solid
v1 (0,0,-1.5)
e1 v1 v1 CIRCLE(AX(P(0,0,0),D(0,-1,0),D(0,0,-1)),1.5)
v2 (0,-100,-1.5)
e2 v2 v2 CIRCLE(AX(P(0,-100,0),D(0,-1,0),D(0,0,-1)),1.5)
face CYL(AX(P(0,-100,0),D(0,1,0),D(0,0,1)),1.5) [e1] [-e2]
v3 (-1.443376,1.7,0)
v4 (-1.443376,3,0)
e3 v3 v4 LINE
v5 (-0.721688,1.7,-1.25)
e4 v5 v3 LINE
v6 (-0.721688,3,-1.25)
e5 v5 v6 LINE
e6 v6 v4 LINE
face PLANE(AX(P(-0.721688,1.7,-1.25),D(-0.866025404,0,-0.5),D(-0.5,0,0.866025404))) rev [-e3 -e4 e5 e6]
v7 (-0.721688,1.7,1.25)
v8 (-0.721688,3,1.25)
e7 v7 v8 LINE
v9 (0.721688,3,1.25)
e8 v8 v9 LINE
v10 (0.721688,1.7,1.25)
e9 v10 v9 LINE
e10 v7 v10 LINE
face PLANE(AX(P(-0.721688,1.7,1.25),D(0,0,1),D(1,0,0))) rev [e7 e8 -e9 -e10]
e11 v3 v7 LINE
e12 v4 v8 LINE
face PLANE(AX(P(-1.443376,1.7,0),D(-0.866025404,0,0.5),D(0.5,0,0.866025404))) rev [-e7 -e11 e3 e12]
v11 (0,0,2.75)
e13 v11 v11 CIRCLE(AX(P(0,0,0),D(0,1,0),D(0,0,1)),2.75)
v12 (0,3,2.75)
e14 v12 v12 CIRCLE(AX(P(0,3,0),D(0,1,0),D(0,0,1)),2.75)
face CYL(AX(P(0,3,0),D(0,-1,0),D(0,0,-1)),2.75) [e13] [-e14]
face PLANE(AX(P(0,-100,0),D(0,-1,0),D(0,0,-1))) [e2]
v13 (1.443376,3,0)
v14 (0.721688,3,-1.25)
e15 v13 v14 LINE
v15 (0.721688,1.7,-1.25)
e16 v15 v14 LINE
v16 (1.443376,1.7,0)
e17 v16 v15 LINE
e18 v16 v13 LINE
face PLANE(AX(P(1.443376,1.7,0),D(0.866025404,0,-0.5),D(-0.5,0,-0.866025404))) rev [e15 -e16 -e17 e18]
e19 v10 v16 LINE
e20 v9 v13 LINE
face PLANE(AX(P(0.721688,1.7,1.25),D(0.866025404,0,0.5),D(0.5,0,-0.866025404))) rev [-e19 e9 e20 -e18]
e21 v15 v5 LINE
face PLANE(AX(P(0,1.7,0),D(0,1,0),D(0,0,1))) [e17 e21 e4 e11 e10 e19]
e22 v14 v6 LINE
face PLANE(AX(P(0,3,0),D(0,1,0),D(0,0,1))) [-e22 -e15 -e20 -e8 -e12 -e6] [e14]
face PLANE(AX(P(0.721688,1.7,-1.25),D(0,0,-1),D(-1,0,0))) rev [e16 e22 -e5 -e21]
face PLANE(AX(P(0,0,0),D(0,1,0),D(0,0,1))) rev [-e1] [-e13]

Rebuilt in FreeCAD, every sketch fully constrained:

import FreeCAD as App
import Part
import Sketcher
from FreeCAD import Vector
Q = App.Units.Quantity

doc = App.newDocument("Part")
body = doc.addObject("PartDesign::Body", "Body")

# Sketch on XZ plane
sketch1 = doc.addObject("Sketcher::SketchObject", "Sketch")
body.addObject(sketch1)
sketch1.AttachmentSupport = (doc.XZ_Plane, [""])
sketch1.MapMode = "FlatFace"
sketch1.addGeometry(Part.Circle(Vector(0, 0, 0), Vector(0, 0, 1), 2.8), False)
sketch1.addConstraint([
    Sketcher.Constraint("Coincident", 0, 3, -1, 1),
    Sketcher.Constraint("Diameter", 0, 5.5),
])
pad1 = doc.addObject("PartDesign::Pad", "Pad")
body.addObject(pad1)
pad1.Profile = sketch1
pad1.Length = 3
pad1.Reversed = True

# Sketch on XZ plane
sketch2 = doc.addObject("Sketcher::SketchObject", "Sketch001")
body.addObject(sketch2)
sketch2.AttachmentSupport = (doc.XZ_Plane, [""])
sketch2.MapMode = "FlatFace"
sketch2.AttachmentOffset = App.Placement(Vector(0, 0, -3), App.Rotation())
sketch2.addGeometry([
    Part.LineSegment(Vector(1.4, 0, 0), Vector(0.7, -1.2, 0)),  # 0
    Part.LineSegment(Vector(0.7, -1.2, 0), Vector(-0.7, -1.2, 0)),  # 1
    Part.LineSegment(Vector(-0.7, -1.2, 0), Vector(-1.4, 0, 0)),  # 2
    Part.LineSegment(Vector(-1.4, 0, 0), Vector(-0.7, 1.2, 0)),  # 3
    Part.LineSegment(Vector(-0.7, 1.2, 0), Vector(0.7, 1.2, 0)),  # 4
    Part.LineSegment(Vector(0.7, 1.2, 0), Vector(1.4, 0, 0)),  # 5
], False)
sketch2.addConstraint([
    Sketcher.Constraint("Coincident", 0, 2, 1, 1),
    Sketcher.Constraint("Coincident", 1, 2, 2, 1),
    Sketcher.Constraint("Coincident", 2, 2, 3, 1),
    Sketcher.Constraint("Coincident", 3, 2, 4, 1),
    Sketcher.Constraint("Coincident", 4, 2, 5, 1),
    Sketcher.Constraint("Coincident", 5, 2, 0, 1),
    Sketcher.Constraint("Horizontal", 1),
    Sketcher.Constraint("Horizontal", 4),
    Sketcher.Constraint("Symmetric", 0, 2, 3, 2, -1, 1),
    Sketcher.Constraint("Symmetric", 2, 2, 5, 2, -1, 1),
    Sketcher.Constraint("PointOnObject", 2, 2, -1),
    Sketcher.Constraint("Parallel", 2, 5),
    Sketcher.Constraint("Vertical", 1, 2, 3, 2),
    Sketcher.Constraint("Angle", 0, Q("-120 deg")),
    Sketcher.Constraint("DistanceY", 1, 2, 3, 2, 2.5),
    Sketcher.Constraint("DistanceX", 1, 2, 1, 1, 1.443376),
])
pocket1 = doc.addObject("PartDesign::Pocket", "Pocket")
body.addObject(pocket1)
pocket1.Profile = sketch2
pocket1.Length = 1.3
pocket1.Reversed = True

# Sketch on XZ plane
sketch3 = doc.addObject("Sketcher::SketchObject", "Sketch002")
body.addObject(sketch3)
sketch3.AttachmentSupport = (doc.XZ_Plane, [""])
sketch3.MapMode = "FlatFace"
sketch3.addGeometry(Part.Circle(Vector(0, 0, 0), Vector(0, 0, 1), 1.5), False)
sketch3.addConstraint([
    Sketcher.Constraint("Coincident", 0, 3, -1, 1),
    Sketcher.Constraint("Diameter", 0, 3.0),
])
pad2 = doc.addObject("PartDesign::Pad", "Pad001")
body.addObject(pad2)
pad2.Profile = sketch3
pad2.Length = 100

doc.recompute()
